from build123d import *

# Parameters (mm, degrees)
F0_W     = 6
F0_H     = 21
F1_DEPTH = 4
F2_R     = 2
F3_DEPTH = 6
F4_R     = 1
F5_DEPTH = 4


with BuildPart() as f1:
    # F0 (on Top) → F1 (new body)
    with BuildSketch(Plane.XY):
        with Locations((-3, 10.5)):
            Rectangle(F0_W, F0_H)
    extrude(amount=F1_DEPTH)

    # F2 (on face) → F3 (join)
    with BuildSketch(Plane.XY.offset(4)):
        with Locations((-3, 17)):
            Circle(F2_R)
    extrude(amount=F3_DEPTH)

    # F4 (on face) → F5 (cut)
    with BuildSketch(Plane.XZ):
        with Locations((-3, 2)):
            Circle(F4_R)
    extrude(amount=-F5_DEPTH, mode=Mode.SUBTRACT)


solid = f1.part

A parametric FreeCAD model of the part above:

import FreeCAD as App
import Part
import Sketcher

V = App.Vector

doc = App.newDocument("Part")
params = doc.addObject("Spreadsheet::Sheet", "Params")
for row, (alias, value) in enumerate([
    ("sketch1_width", "6 mm"),
    ("sketch1_height", "21 mm"),
    ("pad1_length", "4 mm"),
    ("sketch2_diameter", "4 mm"),
    ("pad2_length", "6 mm"),
    ("sketch3_diameter", "2 mm"),
    ("pocket1_length", "4 mm"),
], start=1):
    params.set(f"A{row}", alias)
    params.set(f"B{row}", "=" + value)
    params.setAlias(f"B{row}", alias)

body = doc.addObject("PartDesign::Body", "Body")

# Sketch on XY plane
sketch1 = doc.addObject("Sketcher::SketchObject", "Sketch")
body.addObject(sketch1)
sketch1.AttachmentSupport = (doc.XY_Plane, [""])
sketch1.MapMode = "FlatFace"
sketch1.addGeometry([
    Part.LineSegment(V(-6, 21, 0), V(-6, 0, 0)),
    Part.LineSegment(V(-6, 0, 0), V(0, 0, 0)),
    Part.LineSegment(V(0, 0, 0), V(0, 21, 0)),
    Part.LineSegment(V(0, 21, 0), V(-6, 21, 0)),
], False)
sketch1.addConstraint([
    Sketcher.Constraint("Coincident", 0, 2, 1, 1),
    Sketcher.Constraint("Coincident", 1, 2, 2, 1),
    Sketcher.Constraint("Coincident", 2, 2, 3, 1),
    Sketcher.Constraint("Coincident", 3, 2, 0, 1),
    Sketcher.Constraint("Vertical", 0),
    Sketcher.Constraint("Horizontal", 1),
    Sketcher.Constraint("Vertical", 2),
    Sketcher.Constraint("Horizontal", 3),
    Sketcher.Constraint("Coincident", 1, 2, -1, 1),
    Sketcher.Constraint("DistanceX", 1, 1, 1, 2, 6.0),
    Sketcher.Constraint("DistanceY", 0, 2, 0, 1, 21.0),
])
sketch1.setExpression("Constraints[9]", "Params.sketch1_width")
sketch1.setExpression("Constraints[10]", "Params.sketch1_height")
pad1 = doc.addObject("PartDesign::Pad", "Pad")
body.addObject(pad1)
pad1.Profile = sketch1
pad1.setExpression("Length", "Params.pad1_length")

# Sketch on XY plane
sketch2 = doc.addObject("Sketcher::SketchObject", "Sketch001")
body.addObject(sketch2)
sketch2.AttachmentSupport = (doc.XY_Plane, [""])
sketch2.MapMode = "FlatFace"
sketch2.AttachmentOffset = App.Placement(V(0, 0, 4), App.Rotation())
sketch2.addGeometry(Part.Circle(V(-3, 17, 0), V(0, 0, 1), 2), False)
sketch2.addConstraint([
    Sketcher.Constraint("Diameter", 0, 4.0),
    Sketcher.Constraint("DistanceX", 0, 3, -1, 1, 3.0),
    Sketcher.Constraint("DistanceY", -1, 1, 0, 3, 17.0),
])
sketch2.setExpression("Constraints[0]", "Params.sketch2_diameter")
pad2 = doc.addObject("PartDesign::Pad", "Pad001")
body.addObject(pad2)
pad2.Profile = sketch2
pad2.setExpression("Length", "Params.pad2_length")

# Sketch on XZ plane
sketch3 = doc.addObject("Sketcher::SketchObject", "Sketch002")
body.addObject(sketch3)
sketch3.AttachmentSupport = (doc.XZ_Plane, [""])
sketch3.MapMode = "FlatFace"
sketch3.addGeometry(Part.Circle(V(-3, 2, 0), V(0, 0, 1), 1), False)
sketch3.addConstraint([
    Sketcher.Constraint("Diameter", 0, 2.0),
    Sketcher.Constraint("DistanceX", 0, 3, -1, 1, 3.0),
    Sketcher.Constraint("DistanceY", -1, 1, 0, 3, 2.0),
])
sketch3.setExpression("Constraints[0]", "Params.sketch3_diameter")
pocket1 = doc.addObject("PartDesign::Pocket", "Pocket")
body.addObject(pocket1)
pocket1.Profile = sketch3
pocket1.setExpression("Length", "Params.pocket1_length")

doc.recompute()
